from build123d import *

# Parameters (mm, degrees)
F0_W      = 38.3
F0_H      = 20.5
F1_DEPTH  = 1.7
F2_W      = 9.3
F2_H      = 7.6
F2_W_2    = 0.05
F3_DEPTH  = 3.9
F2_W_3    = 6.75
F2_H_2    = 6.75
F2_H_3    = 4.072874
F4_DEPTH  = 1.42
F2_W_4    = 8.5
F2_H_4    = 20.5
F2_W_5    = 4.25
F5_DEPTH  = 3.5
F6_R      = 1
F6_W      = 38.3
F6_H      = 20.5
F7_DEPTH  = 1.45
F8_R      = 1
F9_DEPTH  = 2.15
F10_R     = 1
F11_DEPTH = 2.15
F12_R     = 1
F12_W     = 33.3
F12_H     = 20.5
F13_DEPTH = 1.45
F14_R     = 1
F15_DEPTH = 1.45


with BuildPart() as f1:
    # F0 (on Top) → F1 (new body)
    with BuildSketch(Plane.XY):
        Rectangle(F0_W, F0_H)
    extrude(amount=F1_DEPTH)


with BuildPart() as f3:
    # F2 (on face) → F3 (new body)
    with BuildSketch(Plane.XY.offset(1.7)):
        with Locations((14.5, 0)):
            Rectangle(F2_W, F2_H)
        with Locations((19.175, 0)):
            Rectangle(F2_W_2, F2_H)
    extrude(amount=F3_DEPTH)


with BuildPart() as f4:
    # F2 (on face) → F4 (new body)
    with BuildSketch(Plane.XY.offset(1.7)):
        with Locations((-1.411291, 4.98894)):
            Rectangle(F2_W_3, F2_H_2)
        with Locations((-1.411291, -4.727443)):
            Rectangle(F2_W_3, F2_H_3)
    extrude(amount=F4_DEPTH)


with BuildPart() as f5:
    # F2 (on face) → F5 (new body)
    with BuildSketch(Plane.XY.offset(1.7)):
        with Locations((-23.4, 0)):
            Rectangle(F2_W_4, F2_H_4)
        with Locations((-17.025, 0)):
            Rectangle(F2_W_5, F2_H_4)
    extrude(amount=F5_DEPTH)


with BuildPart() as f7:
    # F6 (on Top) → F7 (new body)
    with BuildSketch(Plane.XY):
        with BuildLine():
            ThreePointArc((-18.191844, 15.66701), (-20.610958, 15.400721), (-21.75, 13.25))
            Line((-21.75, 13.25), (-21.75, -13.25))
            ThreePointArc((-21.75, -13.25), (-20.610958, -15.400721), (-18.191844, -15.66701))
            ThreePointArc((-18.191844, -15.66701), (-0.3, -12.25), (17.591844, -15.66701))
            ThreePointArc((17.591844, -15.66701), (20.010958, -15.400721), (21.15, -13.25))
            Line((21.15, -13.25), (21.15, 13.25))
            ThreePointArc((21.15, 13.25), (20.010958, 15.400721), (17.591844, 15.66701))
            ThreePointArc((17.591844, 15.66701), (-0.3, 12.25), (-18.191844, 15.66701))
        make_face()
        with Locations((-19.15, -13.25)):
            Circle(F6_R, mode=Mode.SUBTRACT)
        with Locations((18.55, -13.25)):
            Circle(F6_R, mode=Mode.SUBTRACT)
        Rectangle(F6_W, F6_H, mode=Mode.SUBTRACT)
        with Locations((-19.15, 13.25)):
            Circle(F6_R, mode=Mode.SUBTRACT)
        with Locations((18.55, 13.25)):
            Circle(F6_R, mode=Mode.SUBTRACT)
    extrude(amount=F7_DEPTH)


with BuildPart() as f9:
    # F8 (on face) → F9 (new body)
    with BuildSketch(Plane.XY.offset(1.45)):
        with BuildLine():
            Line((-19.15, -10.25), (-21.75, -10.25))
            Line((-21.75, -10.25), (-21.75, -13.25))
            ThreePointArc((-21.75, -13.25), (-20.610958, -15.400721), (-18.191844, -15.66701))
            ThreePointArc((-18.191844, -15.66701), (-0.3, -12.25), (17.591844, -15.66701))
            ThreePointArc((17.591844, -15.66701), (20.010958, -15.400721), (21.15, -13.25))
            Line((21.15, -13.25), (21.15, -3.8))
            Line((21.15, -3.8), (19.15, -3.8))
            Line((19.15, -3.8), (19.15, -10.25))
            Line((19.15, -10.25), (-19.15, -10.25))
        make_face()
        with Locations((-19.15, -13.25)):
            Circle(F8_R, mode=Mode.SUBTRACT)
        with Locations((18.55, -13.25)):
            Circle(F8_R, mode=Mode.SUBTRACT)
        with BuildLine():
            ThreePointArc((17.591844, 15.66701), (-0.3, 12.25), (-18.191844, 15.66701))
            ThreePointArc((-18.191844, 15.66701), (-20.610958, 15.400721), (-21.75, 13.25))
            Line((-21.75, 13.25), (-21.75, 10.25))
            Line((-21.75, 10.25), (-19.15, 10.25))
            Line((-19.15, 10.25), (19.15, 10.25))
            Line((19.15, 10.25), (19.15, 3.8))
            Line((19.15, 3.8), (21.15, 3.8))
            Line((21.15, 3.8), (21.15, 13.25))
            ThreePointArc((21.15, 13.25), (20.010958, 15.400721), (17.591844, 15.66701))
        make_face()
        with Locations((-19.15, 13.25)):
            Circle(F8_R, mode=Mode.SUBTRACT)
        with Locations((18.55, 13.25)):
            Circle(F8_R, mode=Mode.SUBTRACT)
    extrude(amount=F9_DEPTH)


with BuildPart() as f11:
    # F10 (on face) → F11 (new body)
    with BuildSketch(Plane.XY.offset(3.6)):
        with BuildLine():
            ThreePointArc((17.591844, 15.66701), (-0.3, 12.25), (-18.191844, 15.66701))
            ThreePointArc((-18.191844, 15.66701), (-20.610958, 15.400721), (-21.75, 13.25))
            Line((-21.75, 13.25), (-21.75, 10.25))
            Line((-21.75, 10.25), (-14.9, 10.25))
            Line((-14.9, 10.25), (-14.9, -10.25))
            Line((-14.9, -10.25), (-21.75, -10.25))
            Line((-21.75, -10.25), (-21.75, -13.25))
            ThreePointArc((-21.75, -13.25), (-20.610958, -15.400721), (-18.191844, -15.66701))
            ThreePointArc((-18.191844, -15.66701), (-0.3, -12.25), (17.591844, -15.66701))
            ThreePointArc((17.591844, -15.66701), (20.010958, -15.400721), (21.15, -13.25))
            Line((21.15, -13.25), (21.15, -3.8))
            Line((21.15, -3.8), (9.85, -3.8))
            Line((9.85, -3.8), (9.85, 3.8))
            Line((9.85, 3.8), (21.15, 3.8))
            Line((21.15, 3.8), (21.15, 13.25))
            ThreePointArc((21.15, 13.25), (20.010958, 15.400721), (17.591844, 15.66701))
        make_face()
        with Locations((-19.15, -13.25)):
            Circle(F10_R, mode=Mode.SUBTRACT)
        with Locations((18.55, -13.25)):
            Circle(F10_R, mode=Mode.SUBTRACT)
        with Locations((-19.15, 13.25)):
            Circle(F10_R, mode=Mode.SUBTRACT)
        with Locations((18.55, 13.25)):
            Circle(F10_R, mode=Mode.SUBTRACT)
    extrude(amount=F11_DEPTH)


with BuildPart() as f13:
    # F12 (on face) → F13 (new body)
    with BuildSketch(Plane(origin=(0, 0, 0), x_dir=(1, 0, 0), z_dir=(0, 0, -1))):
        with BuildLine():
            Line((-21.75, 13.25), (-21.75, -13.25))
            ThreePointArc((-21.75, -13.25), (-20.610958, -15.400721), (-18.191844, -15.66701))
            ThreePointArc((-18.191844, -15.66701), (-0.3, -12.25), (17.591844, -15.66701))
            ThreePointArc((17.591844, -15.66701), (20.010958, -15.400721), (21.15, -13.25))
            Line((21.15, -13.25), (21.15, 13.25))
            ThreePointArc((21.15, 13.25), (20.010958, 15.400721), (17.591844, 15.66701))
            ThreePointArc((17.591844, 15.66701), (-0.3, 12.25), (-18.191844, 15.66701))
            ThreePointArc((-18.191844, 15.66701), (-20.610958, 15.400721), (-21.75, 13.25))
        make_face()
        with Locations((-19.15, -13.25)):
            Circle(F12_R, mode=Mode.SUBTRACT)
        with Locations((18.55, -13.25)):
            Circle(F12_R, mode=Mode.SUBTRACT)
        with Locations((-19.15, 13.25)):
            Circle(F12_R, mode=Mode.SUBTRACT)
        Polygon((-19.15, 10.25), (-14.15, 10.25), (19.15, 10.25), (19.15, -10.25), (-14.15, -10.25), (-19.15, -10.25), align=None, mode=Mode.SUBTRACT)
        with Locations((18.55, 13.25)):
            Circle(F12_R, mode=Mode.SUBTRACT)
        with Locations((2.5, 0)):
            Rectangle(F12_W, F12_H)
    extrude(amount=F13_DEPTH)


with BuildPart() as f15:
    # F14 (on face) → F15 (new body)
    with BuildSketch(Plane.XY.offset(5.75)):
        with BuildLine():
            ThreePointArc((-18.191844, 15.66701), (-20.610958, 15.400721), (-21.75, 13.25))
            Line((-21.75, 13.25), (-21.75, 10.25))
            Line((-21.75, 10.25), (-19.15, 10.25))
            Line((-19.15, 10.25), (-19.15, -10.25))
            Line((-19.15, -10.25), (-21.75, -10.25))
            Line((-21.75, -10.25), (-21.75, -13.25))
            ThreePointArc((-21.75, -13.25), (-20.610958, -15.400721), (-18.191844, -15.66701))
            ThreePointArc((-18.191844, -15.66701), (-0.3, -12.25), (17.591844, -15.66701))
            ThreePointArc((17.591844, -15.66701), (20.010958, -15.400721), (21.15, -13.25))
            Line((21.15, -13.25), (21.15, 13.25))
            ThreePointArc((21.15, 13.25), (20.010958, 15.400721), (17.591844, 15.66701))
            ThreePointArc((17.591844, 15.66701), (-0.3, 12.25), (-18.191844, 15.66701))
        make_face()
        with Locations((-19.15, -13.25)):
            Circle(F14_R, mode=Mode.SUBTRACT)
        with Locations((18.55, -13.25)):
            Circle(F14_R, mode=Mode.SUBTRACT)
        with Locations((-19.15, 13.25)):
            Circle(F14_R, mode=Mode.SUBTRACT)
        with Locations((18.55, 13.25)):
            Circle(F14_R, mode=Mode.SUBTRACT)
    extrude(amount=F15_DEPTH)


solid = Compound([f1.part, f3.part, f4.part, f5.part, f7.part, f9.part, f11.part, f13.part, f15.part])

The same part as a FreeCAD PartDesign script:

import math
import FreeCAD as App
import Part
import Sketcher


def add_polygon(sketch, points):
    """Adds a closed chain of lines whose ends are joined by coincident constraints."""
    first, n = sketch.GeometryCount, len(points)
    for a, b in zip(points, points[1:] + points[:1]):
        sketch.addGeometry(Part.LineSegment(App.Vector(*a, 0), App.Vector(*b, 0)), False)
    for i in range(n):
        sketch.addConstraint(Sketcher.Constraint("Coincident", first + i, 2, first + (i + 1) % n, 1))

doc = App.newDocument("Part")
body = doc.addObject("PartDesign::Body", "Body")

# Sketch on XY plane
sketch1 = doc.addObject("Sketcher::SketchObject", "Sketch")
body.addObject(sketch1)
sketch1.AttachmentSupport = (doc.XY_Plane, [""])
sketch1.MapMode = "FlatFace"
add_polygon(sketch1, [(-19, 10), (-19, -10), (19, -10), (19, 10)])  # lines 0-3
sketch1.addConstraint([
    Sketcher.Constraint("Vertical", 0),
    Sketcher.Constraint("Horizontal", 1),
    Sketcher.Constraint("Vertical", 2),
    Sketcher.Constraint("Horizontal", 3),
    Sketcher.Constraint("Symmetric", 0, 2, 2, 2, -1, 1),
    Sketcher.Constraint("DistanceX", 1, 1, 1, 2, 38.3),
    Sketcher.Constraint("DistanceY", 0, 2, 0, 1, 20.5),
])
pad1 = doc.addObject("PartDesign::Pad", "Pad")
body.addObject(pad1)
pad1.Profile = sketch1
pad1.Length = 1.7
body2 = doc.addObject("PartDesign::Body", "Body001")

# Sketch on XY plane
sketch2 = doc.addObject("Sketcher::SketchObject", "Sketch001")
body2.addObject(sketch2)
sketch2.AttachmentSupport = (doc.getObject("XY_Plane001"), [""])
sketch2.MapMode = "FlatFace"
sketch2.AttachmentOffset = App.Placement(App.Vector(0, 0, 1.7), App.Rotation())
add_polygon(sketch2, [(10, 4), (10, -4), (19, -4), (19, 4)])  # lines 0-3
sketch2.addConstraint([
    Sketcher.Constraint("Vertical", 0),
    Sketcher.Constraint("Horizontal", 1),
    Sketcher.Constraint("Vertical", 2),
    Sketcher.Constraint("Horizontal", 3),
    Sketcher.Constraint("DistanceY", 0, 2, 0, 1, 7.6),
    Sketcher.Constraint("DistanceX", 1, 1, 1, 2, 9.35),
    Sketcher.Constraint("DistanceY", 0, 2, -1, 1, 3.8),
    Sketcher.Constraint("DistanceX", -1, 1, 1, 2, 19.2),
])
pad2 = doc.addObject("PartDesign::Pad", "Pad001")
body2.addObject(pad2)
pad2.Profile = sketch2
pad2.Length = 3.9
body3 = doc.addObject("PartDesign::Body", "Body002")
body3.AllowCompound = True

# Sketch on XY plane
sketch3 = doc.addObject("Sketcher::SketchObject", "Sketch002")
body3.addObject(sketch3)
sketch3.AttachmentSupport = (doc.getObject("XY_Plane002"), [""])
sketch3.MapMode = "FlatFace"
sketch3.AttachmentOffset = App.Placement(App.Vector(0, 0, 1.7), App.Rotation())
add_polygon(sketch3, [(-4.8, 8.4), (-4.8, 1.6), (2, 1.6), (2, 8.4)])  # lines 0-3
add_polygon(sketch3, [(-4.8, -2.7), (-4.8, -6.8), (2, -6.8), (2, -2.7)])  # lines 4-7
sketch3.addConstraint([
    Sketcher.Constraint("Vertical", 0),
    Sketcher.Constraint("Horizontal", 1),
    Sketcher.Constraint("Vertical", 2),
    Sketcher.Constraint("Horizontal", 3),
    Sketcher.Constraint("Vertical", 4),
    Sketcher.Constraint("Horizontal", 5),
    Sketcher.Constraint("Vertical", 6),
    Sketcher.Constraint("Horizontal", 7),
    Sketcher.Constraint("Vertical", 3, 2, 4, 2),
    Sketcher.Constraint("Vertical", 2, 2, 5, 2),
    Sketcher.Constraint("Equal", 7, 0),
    Sketcher.Constraint("DistanceX", 1, 1, 1, 2, 6.75),
    Sketcher.Constraint("DistanceY", 4, 2, 4, 1, 4.072874),
    Sketcher.Constraint("DistanceX", 0, 2, -1, 1, 4.786291),
    Sketcher.Constraint("DistanceY", -1, 1, 0, 2, 1.61394),
    Sketcher.Constraint("DistanceY", 4, 2, -1, 1, 6.76388),
])
pad3 = doc.addObject("PartDesign::Pad", "Pad002")
body3.addObject(pad3)
pad3.Profile = sketch3
pad3.Length = 1.42
body4 = doc.addObject("PartDesign::Body", "Body003")

# Sketch on XY plane
sketch4 = doc.addObject("Sketcher::SketchObject", "Sketch003")
body4.addObject(sketch4)
sketch4.AttachmentSupport = (doc.getObject("XY_Plane003"), [""])
sketch4.MapMode = "FlatFace"
sketch4.AttachmentOffset = App.Placement(App.Vector(0, 0, 1.7), App.Rotation())
add_polygon(sketch4, [(-28, 10), (-28, -10), (-15, -10), (-15, 10)])  # lines 0-3
sketch4.addConstraint([
    Sketcher.Constraint("Vertical", 0),
    Sketcher.Constraint("Horizontal", 1),
    Sketcher.Constraint("Vertical", 2),
    Sketcher.Constraint("Horizontal", 3),
    Sketcher.Constraint("DistanceY", 0, 2, 0, 1, 20.5),
    Sketcher.Constraint("DistanceX", 1, 1, 1, 2, 12.75),
    Sketcher.Constraint("DistanceX", 1, 2, -1, 1, 14.9),
    Sketcher.Constraint("DistanceY", 0, 2, -1, 1, 10.25),
])
pad4 = doc.addObject("PartDesign::Pad", "Pad003")
body4.addObject(pad4)
pad4.Profile = sketch4
pad4.Length = 3.5
body5 = doc.addObject("PartDesign::Body", "Body004")

# Sketch on XY plane
sketch5 = doc.addObject("Sketcher::SketchObject", "Sketch004")
body5.addObject(sketch5)
sketch5.AttachmentSupport = (doc.getObject("XY_Plane004"), [""])
sketch5.MapMode = "FlatFace"
sketch5.addGeometry(Part.ArcOfCircle(Part.Circle(App.Vector(-19.1, 13.2, 0), App.Vector(0, 0, 1), 2.6), math.radians(68), math.radians(180)), False)  # 0
sketch5.addGeometry(Part.LineSegment(App.Vector(-21.8, 13.2, 0), App.Vector(-21.8, -13.2, 0)), False)  # 1
sketch5.addGeometry(Part.ArcOfCircle(Part.Circle(App.Vector(-19.1, -13.2, 0), App.Vector(0, 0, 1), 2.6), math.radians(-180), math.radians(-68)), False)  # 2
sketch5.addGeometry(Part.ArcOfCircle(Part.Circle(App.Vector(-0.3, -60.8, 0), App.Vector(0, 0, 1), 48.6), math.radians(68), math.radians(112)), False)  # 3
sketch5.addGeometry(Part.ArcOfCircle(Part.Circle(App.Vector(18.5, -13.2, 0), App.Vector(0, 0, 1), 2.6), math.radians(-112), math.radians(0)), False)  # 4
sketch5.addGeometry(Part.LineSegment(App.Vector(21.1, -13.2, 0), App.Vector(21.1, 13.2, 0)), False)  # 5
sketch5.addGeometry(Part.ArcOfCircle(Part.Circle(App.Vector(18.5, 13.2, 0), App.Vector(0, 0, 1), 2.6), math.radians(0), math.radians(112)), False)  # 6
sketch5.addGeometry(Part.ArcOfCircle(Part.Circle(App.Vector(-0.3, 60.8, 0), App.Vector(0, 0, 1), 48.6), math.radians(-112), math.radians(-68)), False)  # 7
sketch5.addGeometry(Part.Circle(App.Vector(-19.1, -13.2, 0), App.Vector(0, 0, 1), 1), False)  # 8
sketch5.addGeometry(Part.Circle(App.Vector(18.6, -13.2, 0), App.Vector(0, 0, 1), 1), False)  # 9
sketch5.addGeometry(Part.Circle(App.Vector(-19.1, 13.2, 0), App.Vector(0, 0, 1), 1), False)  # 10
add_polygon(sketch5, [(19.1, -10.2), (-19.1, -10.2), (-19.1, 10.2), (19.1, 10.2)])  # lines 11-14
sketch5.addGeometry(Part.Circle(App.Vector(18.6, 13.2, 0), App.Vector(0, 0, 1), 1), False)  # 15
sketch5.addConstraint([
    Sketcher.Constraint("Tangent", 0, 2, 1, 1),
    Sketcher.Constraint("Tangent", 1, 2, 2, 1),
    Sketcher.Constraint("Tangent", 2, 2, 3, 2),
    Sketcher.Constraint("Tangent", 3, 1, 4, 1),
    Sketcher.Constraint("Tangent", 4, 2, 5, 1),
    Sketcher.Constraint("Tangent", 5, 2, 6, 1),
    Sketcher.Constraint("Tangent", 6, 2, 7, 2),
    Sketcher.Constraint("Tangent", 7, 1, 0, 1),
    Sketcher.Constraint("Vertical", 1),
    Sketcher.Constraint("Vertical", 5),
    Sketcher.Constraint("Horizontal", 11),
    Sketcher.Constraint("Vertical", 12),
    Sketcher.Constraint("Horizontal", 13),
    Sketcher.Constraint("Vertical", 14),
    Sketcher.Constraint("Coincident", 8, 3, 2, 3),
    Sketcher.Constraint("Coincident", 9, 3, 4, 3),
    Sketcher.Constraint("Coincident", 10, 3, 0, 3),
    Sketcher.Constraint("Coincident", 15, 3, 6, 3),
    Sketcher.Constraint("Equal", 0, 2),
    Sketcher.Constraint("Equal", 2, 4),
    Sketcher.Constraint("Equal", 4, 6),
    Sketcher.Constraint("Equal", 3, 7),
    Sketcher.Constraint("Equal", 8, 9),
    Sketcher.Constraint("Equal", 9, 10),
    Sketcher.Constraint("Equal", 10, 15),
    Sketcher.Constraint("Symmetric", 11, 2, 13, 2, -1, 1),
    Sketcher.Constraint("Symmetric", 3, 3, 7, 3, -1),
    Sketcher.Constraint("Horizontal", 2, 3, 4, 3),
    Sketcher.Constraint("Vertical", 10, 3, 11, 2),
    Sketcher.Constraint("Diameter", 8, 2.0),
    Sketcher.Constraint("Radius", 0, 2.6),
    Sketcher.Constraint("DistanceX", 11, 2, 11, 1, 38.3),
    Sketcher.Constraint("DistanceY", 1, 2, 1, 1, 26.5),
    Sketcher.Constraint("DistanceY", 12, 1, 12, 2, 20.5),
    Sketcher.Constraint("DistanceX", 13, 2, 5, 2, 2.0),
    Sketcher.Constraint("Radius", 3, 48.550347),
])
pad5 = doc.addObject("PartDesign::Pad", "Pad004")
body5.addObject(pad5)
pad5.Profile = sketch5
pad5.Length = 1.45
body6 = doc.addObject("PartDesign::Body", "Body005")
body6.AllowCompound = True

# Sketch on XY plane
sketch6 = doc.addObject("Sketcher::SketchObject", "Sketch005")
body6.addObject(sketch6)
sketch6.AttachmentSupport = (doc.getObject("XY_Plane005"), [""])
sketch6.MapMode = "FlatFace"
sketch6.AttachmentOffset = App.Placement(App.Vector(0, 0, 1.45), App.Rotation())
sketch6.addGeometry([
    Part.LineSegment(App.Vector(-21.8, -10.2, 0), App.Vector(-21.8, -13.2, 0)),  # 0
    Part.ArcOfCircle(Part.Circle(App.Vector(-19.1, -13.2, 0), App.Vector(0, 0, 1), 2.6), math.radians(-180), math.radians(-68)),  # 1
    Part.ArcOfCircle(Part.Circle(App.Vector(-0.3, -60.8, 0), App.Vector(0, 0, 1), 48.6), math.radians(68), math.radians(112)),  # 2
    Part.ArcOfCircle(Part.Circle(App.Vector(18.5, -13.2, 0), App.Vector(0, 0, 1), 2.6), math.radians(-112), math.radians(0)),  # 3
    Part.LineSegment(App.Vector(21.1, -13.2, 0), App.Vector(21.1, -3.8, 0)),  # 4
    Part.LineSegment(App.Vector(21.1, -3.8, 0), App.Vector(19.1, -3.8, 0)),  # 5
    Part.LineSegment(App.Vector(19.1, -3.8, 0), App.Vector(19.1, -10.2, 0)),  # 6
    Part.LineSegment(App.Vector(19.1, -10.2, 0), App.Vector(-21.8, -10.2, 0)),  # 7
    Part.Circle(App.Vector(-19.1, -13.2, 0), App.Vector(0, 0, 1), 1),  # 8
    Part.Circle(App.Vector(18.6, -13.2, 0), App.Vector(0, 0, 1), 1),  # 9
    Part.ArcOfCircle(Part.Circle(App.Vector(-0.3, 60.8, 0), App.Vector(0, 0, 1), 48.6), math.radians(-112), math.radians(-68)),  # 10
    Part.ArcOfCircle(Part.Circle(App.Vector(-19.1, 13.2, 0), App.Vector(0, 0, 1), 2.6), math.radians(68), math.radians(180)),  # 11
    Part.LineSegment(App.Vector(-21.8, 13.2, 0), App.Vector(-21.8, 10.2, 0)),  # 12
    Part.LineSegment(App.Vector(-21.8, 10.2, 0), App.Vector(19.1, 10.2, 0)),  # 13
    Part.LineSegment(App.Vector(19.1, 10.2, 0), App.Vector(19.1, 3.8, 0)),  # 14
    Part.LineSegment(App.Vector(19.1, 3.8, 0), App.Vector(21.1, 3.8, 0)),  # 15
    Part.LineSegment(App.Vector(21.1, 3.8, 0), App.Vector(21.1, 13.2, 0)),  # 16
    Part.ArcOfCircle(Part.Circle(App.Vector(18.5, 13.2, 0), App.Vector(0, 0, 1), 2.6), math.radians(0), math.radians(112)),  # 17
    Part.Circle(App.Vector(-19.1, 13.2, 0), App.Vector(0, 0, 1), 1),  # 18
    Part.Circle(App.Vector(18.6, 13.2, 0), App.Vector(0, 0, 1), 1),  # 19
], False)
sketch6.addConstraint([
    Sketcher.Constraint("Tangent", 0, 2, 1, 1),
    Sketcher.Constraint("Tangent", 1, 2, 2, 2),
    Sketcher.Constraint("Tangent", 2, 1, 3, 1),
    Sketcher.Constraint("Tangent", 3, 2, 4, 1),
    Sketcher.Constraint("Coincident", 4, 2, 5, 1),
    Sketcher.Constraint("Coincident", 5, 2, 6, 1),
    Sketcher.Constraint("Coincident", 6, 2, 7, 1),
    Sketcher.Constraint("Coincident", 7, 2, 0, 1),
    Sketcher.Constraint("Tangent", 10, 1, 11, 1),
    Sketcher.Constraint("Tangent", 11, 2, 12, 1),
    Sketcher.Constraint("Coincident", 12, 2, 13, 1),
    Sketcher.Constraint("Coincident", 13, 2, 14, 1),
    Sketcher.Constraint("Coincident", 14, 2, 15, 1),
    Sketcher.Constraint("Coincident", 15, 2, 16, 1),
    Sketcher.Constraint("Tangent", 16, 2, 17, 1),
    Sketcher.Constraint("Tangent", 17, 2, 10, 2),
    Sketcher.Constraint("Vertical", 0),
    Sketcher.Constraint("Vertical", 4),
    Sketcher.Constraint("Horizontal", 5),
    Sketcher.Constraint("Vertical", 6),
    Sketcher.Constraint("Horizontal", 7),
    Sketcher.Constraint("Vertical", 12),
    Sketcher.Constraint("Horizontal", 13),
    Sketcher.Constraint("Vertical", 14),
    Sketcher.Constraint("Horizontal", 15),
    Sketcher.Constraint("Vertical", 16),
    Sketcher.Constraint("Coincident", 8, 3, 1, 3),
    Sketcher.Constraint("Coincident", 9, 3, 3, 3),
    Sketcher.Constraint("Coincident", 18, 3, 11, 3),
    Sketcher.Constraint("Coincident", 19, 3, 17, 3),
    Sketcher.Constraint("Equal", 1, 3),
    Sketcher.Constraint("Equal", 8, 9),
    Sketcher.Constraint("Equal", 2, 10),
    Sketcher.Constraint("Equal", 3, 11),
    Sketcher.Constraint("Equal", 11, 17),
    Sketcher.Constraint("Equal", 9, 18),
    Sketcher.Constraint("Equal", 18, 19),
    Sketcher.Constraint("Symmetric", 2, 3, 10, 3, -1),
    Sketcher.Constraint("Symmetric", 7, 2, 12, 2, -1),
    Sketcher.Constraint("Symmetric", 5, 2, 14, 2, -1),
    Sketcher.Constraint("Horizontal", 1, 3, 3, 3),
    Sketcher.Constraint("Horizontal", 11, 3, 17, 3),
    Sketcher.Constraint("Diameter", 8, 2.0),
    Sketcher.Constraint("Radius", 1, 2.6),
    Sketcher.Constraint("DistanceX", 5, 2, 5, 1, 2.0),
    Sketcher.Constraint("DistanceY", 0, 2, 0, 1, 3.0),
    Sketcher.Constraint("DistanceX", 7, 2, 7, 1, 40.9),
    Sketcher.Constraint("DistanceY", 4, 1, 4, 2, 9.45),
    Sketcher.Constraint("DistanceX", 2, 3, -1, 1, 0.3),
    Sketcher.Constraint("DistanceY", 4, 2, -1, 1, 3.8),
    Sketcher.Constraint("Radius", 2, 48.550347),
])
pad6 = doc.addObject("PartDesign::Pad", "Pad005")
body6.addObject(pad6)
pad6.Profile = sketch6
pad6.Length = 2.15
body7 = doc.addObject("PartDesign::Body", "Body006")

# Sketch on XY plane
sketch7 = doc.addObject("Sketcher::SketchObject", "Sketch006")
body7.addObject(sketch7)
sketch7.AttachmentSupport = (doc.getObject("XY_Plane006"), [""])
sketch7.MapMode = "FlatFace"
sketch7.AttachmentOffset = App.Placement(App.Vector(0, 0, 3.6), App.Rotation())
sketch7.addGeometry([
    Part.ArcOfCircle(Part.Circle(App.Vector(-0.3, 60.8, 0), App.Vector(0, 0, 1), 48.6), math.radians(-112), math.radians(-68)),  # 0
    Part.ArcOfCircle(Part.Circle(App.Vector(-19.1, 13.2, 0), App.Vector(0, 0, 1), 2.6), math.radians(68), math.radians(180)),  # 1
    Part.LineSegment(App.Vector(-21.8, 13.2, 0), App.Vector(-21.8, 10.2, 0)),  # 2
    Part.LineSegment(App.Vector(-21.8, 10.2, 0), App.Vector(-14.9, 10.2, 0)),  # 3
    Part.LineSegment(App.Vector(-14.9, 10.2, 0), App.Vector(-14.9, -10.2, 0)),  # 4
    Part.LineSegment(App.Vector(-14.9, -10.2, 0), App.Vector(-21.8, -10.2, 0)),  # 5
    Part.LineSegment(App.Vector(-21.8, -10.2, 0), App.Vector(-21.8, -13.2, 0)),  # 6
    Part.ArcOfCircle(Part.Circle(App.Vector(-19.1, -13.2, 0), App.Vector(0, 0, 1), 2.6), math.radians(-180), math.radians(-68)),  # 7
    Part.ArcOfCircle(Part.Circle(App.Vector(-0.3, -60.8, 0), App.Vector(0, 0, 1), 48.6), math.radians(68), math.radians(112)),  # 8
    Part.ArcOfCircle(Part.Circle(App.Vector(18.5, -13.2, 0), App.Vector(0, 0, 1), 2.6), math.radians(-112), math.radians(0)),  # 9
    Part.LineSegment(App.Vector(21.1, -13.2, 0), App.Vector(21.1, -3.8, 0)),  # 10
    Part.LineSegment(App.Vector(21.1, -3.8, 0), App.Vector(9.8, -3.8, 0)),  # 11
    Part.LineSegment(App.Vector(9.8, -3.8, 0), App.Vector(9.8, 3.8, 0)),  # 12
    Part.LineSegment(App.Vector(9.8, 3.8, 0), App.Vector(21.1, 3.8, 0)),  # 13
    Part.LineSegment(App.Vector(21.1, 3.8, 0), App.Vector(21.1, 13.2, 0)),  # 14
    Part.ArcOfCircle(Part.Circle(App.Vector(18.5, 13.2, 0), App.Vector(0, 0, 1), 2.6), math.radians(0), math.radians(112)),  # 15
    Part.Circle(App.Vector(-19.1, -13.2, 0), App.Vector(0, 0, 1), 1),  # 16
    Part.Circle(App.Vector(18.6, -13.2, 0), App.Vector(0, 0, 1), 1),  # 17
    Part.Circle(App.Vector(-19.1, 13.2, 0), App.Vector(0, 0, 1), 1),  # 18
    Part.Circle(App.Vector(18.6, 13.2, 0), App.Vector(0, 0, 1), 1),  # 19
], False)
sketch7.addConstraint([
    Sketcher.Constraint("Tangent", 0, 1, 1, 1),
    Sketcher.Constraint("Tangent", 1, 2, 2, 1),
    Sketcher.Constraint("Coincident", 2, 2, 3, 1),
    Sketcher.Constraint("Coincident", 3, 2, 4, 1),
    Sketcher.Constraint("Coincident", 4, 2, 5, 1),
    Sketcher.Constraint("Coincident", 5, 2, 6, 1),
    Sketcher.Constraint("Tangent", 6, 2, 7, 1),
    Sketcher.Constraint("Tangent", 7, 2, 8, 2),
    Sketcher.Constraint("Tangent", 8, 1, 9, 1),
    Sketcher.Constraint("Tangent", 9, 2, 10, 1),
    Sketcher.Constraint("Coincident", 10, 2, 11, 1),
    Sketcher.Constraint("Coincident", 11, 2, 12, 1),
    Sketcher.Constraint("Coincident", 12, 2, 13, 1),
    Sketcher.Constraint("Coincident", 13, 2, 14, 1),
    Sketcher.Constraint("Tangent", 14, 2, 15, 1),
    Sketcher.Constraint("Tangent", 15, 2, 0, 2),
    Sketcher.Constraint("Vertical", 2),
    Sketcher.Constraint("Horizontal", 3),
    Sketcher.Constraint("Vertical", 4),
    Sketcher.Constraint("Horizontal", 5),
    Sketcher.Constraint("Vertical", 6),
    Sketcher.Constraint("Vertical", 10),
    Sketcher.Constraint("Horizontal", 11),
    Sketcher.Constraint("Vertical", 12),
    Sketcher.Constraint("Horizontal", 13),
    Sketcher.Constraint("Vertical", 14),
    Sketcher.Constraint("Coincident", 16, 3, 7, 3),
    Sketcher.Constraint("Coincident", 17, 3, 9, 3),
    Sketcher.Constraint("Coincident", 18, 3, 1, 3),
    Sketcher.Constraint("Coincident", 19, 3, 15, 3),
    Sketcher.Constraint("Equal", 1, 7),
    Sketcher.Constraint("Equal", 0, 8),
    Sketcher.Constraint("Equal", 7, 9),
    Sketcher.Constraint("Equal", 9, 15),
    Sketcher.Constraint("Equal", 16, 17),
    Sketcher.Constraint("Equal", 17, 18),
    Sketcher.Constraint("Equal", 18, 19),
    Sketcher.Constraint("Symmetric", 1, 3, 7, 3, -1),
    Sketcher.Constraint("Symmetric", 9, 3, 15, 3, -1),
    Sketcher.Constraint("Horizontal", 7, 3, 9, 3),
    Sketcher.Constraint("Equal", 2, 6),
    Sketcher.Constraint("Equal", 10, 14),
    Sketcher.Constraint("Diameter", 16, 2.0),
    Sketcher.Constraint("Radius", 1, 2.6),
    Sketcher.Constraint("DistanceY", 2, 2, 2, 1, 3.0),
    Sketcher.Constraint("DistanceX", 11, 2, 11, 1, 11.3),
    Sketcher.Constraint("DistanceY", 4, 2, 4, 1, 20.5),
    Sketcher.Constraint("DistanceY", 12, 1, 12, 2, 7.6),
    Sketcher.Constraint("DistanceX", 3, 1, 3, 2, 6.85),
    Sketcher.Constraint("DistanceX", 0, 3, -1, 1, 0.3),
    Sketcher.Constraint("DistanceX", 3, 2, -1, 1, 14.9),
    Sketcher.Constraint("Radius", 0, 48.550347),
])
pad7 = doc.addObject("PartDesign::Pad", "Pad006")
body7.addObject(pad7)
pad7.Profile = sketch7
pad7.Length = 2.15
body8 = doc.addObject("PartDesign::Body", "Body007")

# Sketch on XY plane
sketch8 = doc.addObject("Sketcher::SketchObject", "Sketch007")
body8.addObject(sketch8)
sketch8.AttachmentSupport = (doc.getObject("XY_Plane007"), [""])
sketch8.MapMode = "FlatFace"
sketch8.addGeometry(Part.LineSegment(App.Vector(-21.8, -13.2, 0), App.Vector(-21.8, 13.2, 0)), False)  # 0
sketch8.addGeometry(Part.ArcOfCircle(Part.Circle(App.Vector(-19.1, 13.2, 0), App.Vector(0, 0, 1), 2.6), math.radians(68), math.radians(180)), False)  # 1
sketch8.addGeometry(Part.ArcOfCircle(Part.Circle(App.Vector(-0.3, 60.8, 0), App.Vector(0, 0, 1), 48.6), math.radians(-112), math.radians(-68)), False)  # 2
sketch8.addGeometry(Part.ArcOfCircle(Part.Circle(App.Vector(18.5, 13.2, 0), App.Vector(0, 0, 1), 2.6), math.radians(0), math.radians(112)), False)  # 3
sketch8.addGeometry(Part.LineSegment(App.Vector(21.1, 13.2, 0), App.Vector(21.1, -13.2, 0)), False)  # 4
sketch8.addGeometry(Part.ArcOfCircle(Part.Circle(App.Vector(18.5, -13.2, 0), App.Vector(0, 0, 1), 2.6), math.radians(-112), math.radians(0)), False)  # 5
sketch8.addGeometry(Part.ArcOfCircle(Part.Circle(App.Vector(-0.3, -60.8, 0), App.Vector(0, 0, 1), 48.6), math.radians(68), math.radians(112)), False)  # 6
sketch8.addGeometry(Part.ArcOfCircle(Part.Circle(App.Vector(-19.1, -13.2, 0), App.Vector(0, 0, 1), 2.6), math.radians(-180), math.radians(-68)), False)  # 7
sketch8.addGeometry(Part.Circle(App.Vector(-19.1, 13.2, 0), App.Vector(0, 0, 1), 1), False)  # 8
sketch8.addGeometry(Part.Circle(App.Vector(18.6, 13.2, 0), App.Vector(0, 0, 1), 1), False)  # 9
sketch8.addGeometry(Part.Circle(App.Vector(-19.1, -13.2, 0), App.Vector(0, 0, 1), 1), False)  # 10
add_polygon(sketch8, [(-19.1, 10.2), (-19.1, -10.2), (-14.2, -10.2), (-14.2, 10.2)])  # lines 11-14
sketch8.addGeometry(Part.Circle(App.Vector(18.6, -13.2, 0), App.Vector(0, 0, 1), 1), False)  # 15
sketch8.addConstraint([
    Sketcher.Constraint("Tangent", 0, 2, 1, 2),
    Sketcher.Constraint("Tangent", 1, 1, 2, 1),
    Sketcher.Constraint("Tangent", 2, 2, 3, 2),
    Sketcher.Constraint("Tangent", 3, 1, 4, 1),
    Sketcher.Constraint("Tangent", 4, 2, 5, 2),
    Sketcher.Constraint("Tangent", 5, 1, 6, 1),
    Sketcher.Constraint("Tangent", 6, 2, 7, 2),
    Sketcher.Constraint("Tangent", 7, 1, 0, 1),
    Sketcher.Constraint("Vertical", 0),
    Sketcher.Constraint("Vertical", 4),
    Sketcher.Constraint("Vertical", 11),
    Sketcher.Constraint("Horizontal", 12),
    Sketcher.Constraint("Vertical", 13),
    Sketcher.Constraint("Horizontal", 14),
    Sketcher.Constraint("Coincident", 8, 3, 1, 3),
    Sketcher.Constraint("Coincident", 9, 3, 3, 3),
    Sketcher.Constraint("Coincident", 10, 3, 7, 3),
    Sketcher.Constraint("Coincident", 15, 3, 5, 3),
    Sketcher.Constraint("Equal", 1, 3),
    Sketcher.Constraint("Equal", 3, 5),
    Sketcher.Constraint("Equal", 2, 6),
    Sketcher.Constraint("Equal", 5, 7),
    Sketcher.Constraint("Equal", 8, 9),
    Sketcher.Constraint("Equal", 9, 10),
    Sketcher.Constraint("Equal", 10, 15),
    Sketcher.Constraint("Symmetric", 2, 3, 6, 3, -1),
    Sketcher.Constraint("Horizontal", 1, 3, 3, 3),
    Sketcher.Constraint("Vertical", 10, 3, 11, 2),
    Sketcher.Constraint("Diameter", 8, 2.0),
    Sketcher.Constraint("Radius", 1, 2.6),
    Sketcher.Constraint("DistanceX", 12, 1, 12, 2, 5.0),
    Sketcher.Constraint("DistanceY", 0, 1, 0, 2, 26.5),
    Sketcher.Constraint("DistanceY", 11, 2, 11, 1, 20.5),
    Sketcher.Constraint("DistanceY", 7, 3, 11, 2, 3.0),
    Sketcher.Constraint("DistanceX", 2, 3, -1, 1, 0.3),
    Sketcher.Constraint("DistanceX", 1, 3, 3, 3, 37.699999),
    Sketcher.Constraint("Radius", 2, 48.550347),
])
pad8 = doc.addObject("PartDesign::Pad", "Pad007")
body8.addObject(pad8)
pad8.Profile = sketch8
pad8.Length = 1.45
pad8.Reversed = True
body9 = doc.addObject("PartDesign::Body", "Body008")

# Sketch on XY plane
sketch9 = doc.addObject("Sketcher::SketchObject", "Sketch008")
body9.addObject(sketch9)
sketch9.AttachmentSupport = (doc.getObject("XY_Plane008"), [""])
sketch9.MapMode = "FlatFace"
sketch9.AttachmentOffset = App.Placement(App.Vector(0, 0, 5.75), App.Rotation())
sketch9.addGeometry([
    Part.ArcOfCircle(Part.Circle(App.Vector(-19.1, 13.2, 0), App.Vector(0, 0, 1), 2.6), math.radians(68), math.radians(180)),  # 0
    Part.LineSegment(App.Vector(-21.8, 13.2, 0), App.Vector(-21.8, 10.2, 0)),  # 1
    Part.LineSegment(App.Vector(-21.8, 10.2, 0), App.Vector(-19.1, 10.2, 0)),  # 2
    Part.LineSegment(App.Vector(-19.1, 10.2, 0), App.Vector(-19.1, -10.2, 0)),  # 3
    Part.LineSegment(App.Vector(-19.1, -10.2, 0), App.Vector(-21.8, -10.2, 0)),  # 4
    Part.LineSegment(App.Vector(-21.8, -10.2, 0), App.Vector(-21.8, -13.2, 0)),  # 5
    Part.ArcOfCircle(Part.Circle(App.Vector(-19.1, -13.2, 0), App.Vector(0, 0, 1), 2.6), math.radians(-180), math.radians(-68)),  # 6
    Part.ArcOfCircle(Part.Circle(App.Vector(-0.3, -60.8, 0), App.Vector(0, 0, 1), 48.6), math.radians(68), math.radians(112)),  # 7
    Part.ArcOfCircle(Part.Circle(App.Vector(18.5, -13.2, 0), App.Vector(0, 0, 1), 2.6), math.radians(-112), math.radians(0)),  # 8
    Part.LineSegment(App.Vector(21.1, -13.2, 0), App.Vector(21.1, 13.2, 0)),  # 9
    Part.ArcOfCircle(Part.Circle(App.Vector(18.5, 13.2, 0), App.Vector(0, 0, 1), 2.6), math.radians(0), math.radians(112)),  # 10
    Part.ArcOfCircle(Part.Circle(App.Vector(-0.3, 60.8, 0), App.Vector(0, 0, 1), 48.6), math.radians(-112), math.radians(-68)),  # 11
    Part.Circle(App.Vector(-19.1, -13.2, 0), App.Vector(0, 0, 1), 1),  # 12
    Part.Circle(App.Vector(18.6, -13.2, 0), App.Vector(0, 0, 1), 1),  # 13
    Part.Circle(App.Vector(-19.1, 13.2, 0), App.Vector(0, 0, 1), 1),  # 14
    Part.Circle(App.Vector(18.6, 13.2, 0), App.Vector(0, 0, 1), 1),  # 15
], False)
sketch9.addConstraint([
    Sketcher.Constraint("Tangent", 0, 2, 1, 1),
    Sketcher.Constraint("Coincident", 1, 2, 2, 1),
    Sketcher.Constraint("Coincident", 2, 2, 3, 1),
    Sketcher.Constraint("Coincident", 3, 2, 4, 1),
    Sketcher.Constraint("Coincident", 4, 2, 5, 1),
    Sketcher.Constraint("Tangent", 5, 2, 6, 1),
    Sketcher.Constraint("Tangent", 6, 2, 7, 2),
    Sketcher.Constraint("Tangent", 7, 1, 8, 1),
    Sketcher.Constraint("Tangent", 8, 2, 9, 1),
    Sketcher.Constraint("Tangent", 9, 2, 10, 1),
    Sketcher.Constraint("Tangent", 10, 2, 11, 2),
    Sketcher.Constraint("Tangent", 11, 1, 0, 1),
    Sketcher.Constraint("Vertical", 1),
    Sketcher.Constraint("Horizontal", 2),
    Sketcher.Constraint("Vertical", 3),
    Sketcher.Constraint("Horizontal", 4),
    Sketcher.Constraint("Vertical", 5),
    Sketcher.Constraint("Vertical", 9),
    Sketcher.Constraint("Coincident", 12, 3, 6, 3),
    Sketcher.Constraint("Coincident", 13, 3, 8, 3),
    Sketcher.Constraint("Coincident", 14, 3, 0, 3),
    Sketcher.Constraint("Coincident", 15, 3, 10, 3),
    Sketcher.Constraint("Equal", 0, 6),
    Sketcher.Constraint("Equal", 6, 8),
    Sketcher.Constraint("Equal", 8, 10),
    Sketcher.Constraint("Equal", 7, 11),
    Sketcher.Constraint("Equal", 12, 13),
    Sketcher.Constraint("Equal", 13, 14),
    Sketcher.Constraint("Equal", 14, 15),
    Sketcher.Constraint("Symmetric", 0, 3, 6, 3, -1),
    Sketcher.Constraint("Horizontal", 6, 3, 8, 3),
    Sketcher.Constraint("Horizontal", 0, 3, 10, 3),
    Sketcher.Constraint("Vertical", 14, 3, 2, 2),
    Sketcher.Constraint("Equal", 1, 5),
    Sketcher.Constraint("Diameter", 12, 2.0),
    Sketcher.Constraint("Radius", 0, 2.6),
    Sketcher.Constraint("DistanceY", 1, 2, 1, 1, 3.0),
    Sketcher.Constraint("DistanceY", 3, 2, 3, 1, 20.5),
    Sketcher.Constraint("DistanceX", 7, 3, -1, 1, 0.3),
    Sketcher.Constraint("DistanceX", 6, 3, 8, 3, 37.699999),
    Sketcher.Constraint("Radius", 7, 48.550347),
])
pad9 = doc.addObject("PartDesign::Pad", "Pad008")
body9.addObject(pad9)
pad9.Profile = sketch9
pad9.Length = 1.45

doc.recompute()
